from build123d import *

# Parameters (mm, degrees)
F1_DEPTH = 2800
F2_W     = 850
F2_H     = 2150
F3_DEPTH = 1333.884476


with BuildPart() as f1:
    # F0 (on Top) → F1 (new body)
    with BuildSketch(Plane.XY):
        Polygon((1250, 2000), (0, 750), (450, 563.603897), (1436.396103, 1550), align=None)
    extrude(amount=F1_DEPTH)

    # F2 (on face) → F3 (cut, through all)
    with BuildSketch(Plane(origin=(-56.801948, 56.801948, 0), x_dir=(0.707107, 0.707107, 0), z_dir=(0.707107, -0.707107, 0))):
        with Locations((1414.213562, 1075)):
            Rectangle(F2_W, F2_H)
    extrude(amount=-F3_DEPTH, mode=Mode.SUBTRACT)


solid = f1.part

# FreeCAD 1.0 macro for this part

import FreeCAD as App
import Part
import Sketcher
from FreeCAD import Vector
Q = App.Units.Quantity

doc = App.newDocument("Part")
body = doc.addObject("PartDesign::Body", "Body")

sketch1 = body.newObject("Sketcher::SketchObject", "Sketch")
sketch1.AttachmentSupport = (doc.getObject("XY_Plane"), [""])
sketch1.MapMode = "FlatFace"
sketch1.addGeometry(Part.LineSegment(Vector(1250, 2000, 0), Vector(0, 750, 0)), False)
sketch1.addGeometry(Part.LineSegment(Vector(0, 750, 0), Vector(450, 563.603897, 0)), False)
sketch1.addGeometry(Part.LineSegment(Vector(450, 563.603897, 0), Vector(1436.396103, 1550, 0)), False)
sketch1.addGeometry(Part.LineSegment(Vector(1436.396103, 1550, 0), Vector(1250, 2000, 0)), False)
sketch1.addConstraint(Sketcher.Constraint("Coincident", 0, 2, 1, 1))
sketch1.addConstraint(Sketcher.Constraint("Coincident", 1, 2, 2, 1))
sketch1.addConstraint(Sketcher.Constraint("Coincident", 2, 2, 3, 1))
sketch1.addConstraint(Sketcher.Constraint("Coincident", 3, 2, 0, 1))
sketch1.addConstraint(Sketcher.Constraint("PointOnObject", 0, 2, -2))
sketch1.addConstraint(Sketcher.Constraint("Parallel", 0, 2))
sketch1.addConstraint(Sketcher.Constraint("Equal", 1, 3))
sketch1.addConstraint(Sketcher.Constraint("Angle", 0, Q("-135 deg")))
sketch1.addConstraint(Sketcher.Constraint("DistanceY", -1, 1, 0, 2, Q("750 mm")))
sketch1.addConstraint(Sketcher.Constraint("DistanceX", -1, 1, 1, 2, Q("450 mm")))
sketch1.addConstraint(Sketcher.Constraint("DistanceY", -1, 1, 2, 2, Q("1550 mm")))
sketch1.addConstraint(Sketcher.Constraint("Angle", 1, Q("-22.5 deg")))
pad1 = body.newObject("PartDesign::Pad", "Pad")
pad1.Profile = sketch1
pad1.Length = 2800

sketch2 = body.newObject("Sketcher::SketchObject", "Sketch001")
sketch2.Placement = App.Placement(Vector(-56.801948, 56.801948, 0), App.Rotation(Vector(0.707106781, 0.707106781, 0), Vector(0, 0, 0.999999999), Vector(0.707106781, -0.707106781, 0), "ZXY"))
sketch2.addGeometry(Part.LineSegment(Vector(989.213561, 2149.999998, 0), Vector(989.213561, 0, 0)), False)
sketch2.addGeometry(Part.LineSegment(Vector(989.213561, 0, 0), Vector(1839.213561, 0, 0)), False)
sketch2.addGeometry(Part.LineSegment(Vector(1839.213561, 0, 0), Vector(1839.213561, 2149.999998, 0)), False)
sketch2.addGeometry(Part.LineSegment(Vector(1839.213561, 2149.999998, 0), Vector(989.213561, 2149.999998, 0)), False)
sketch2.addConstraint(Sketcher.Constraint("Coincident", 0, 2, 1, 1))
sketch2.addConstraint(Sketcher.Constraint("Coincident", 1, 2, 2, 1))
sketch2.addConstraint(Sketcher.Constraint("Coincident", 2, 2, 3, 1))
sketch2.addConstraint(Sketcher.Constraint("Coincident", 3, 2, 0, 1))
sketch2.addConstraint(Sketcher.Constraint("Vertical", 0))
sketch2.addConstraint(Sketcher.Constraint("Horizontal", 1))
sketch2.addConstraint(Sketcher.Constraint("Vertical", 2))
sketch2.addConstraint(Sketcher.Constraint("Horizontal", 3))
sketch2.addConstraint(Sketcher.Constraint("PointOnObject", 0, 2, -1))
sketch2.addConstraint(Sketcher.Constraint("DistanceX", 1, 1, 1, 2, Q("850 mm")))
sketch2.addConstraint(Sketcher.Constraint("DistanceY", 0, 2, 0, 1, Q("2149.999998 mm")))
sketch2.addConstraint(Sketcher.Constraint("DistanceX", -1, 1, 0, 2, Q("989.213561 mm")))
pocket1 = body.newObject("PartDesign::Pocket", "Pocket")
pocket1.Profile = sketch2
pocket1.Type = "ThroughAll"

doc.recompute()
